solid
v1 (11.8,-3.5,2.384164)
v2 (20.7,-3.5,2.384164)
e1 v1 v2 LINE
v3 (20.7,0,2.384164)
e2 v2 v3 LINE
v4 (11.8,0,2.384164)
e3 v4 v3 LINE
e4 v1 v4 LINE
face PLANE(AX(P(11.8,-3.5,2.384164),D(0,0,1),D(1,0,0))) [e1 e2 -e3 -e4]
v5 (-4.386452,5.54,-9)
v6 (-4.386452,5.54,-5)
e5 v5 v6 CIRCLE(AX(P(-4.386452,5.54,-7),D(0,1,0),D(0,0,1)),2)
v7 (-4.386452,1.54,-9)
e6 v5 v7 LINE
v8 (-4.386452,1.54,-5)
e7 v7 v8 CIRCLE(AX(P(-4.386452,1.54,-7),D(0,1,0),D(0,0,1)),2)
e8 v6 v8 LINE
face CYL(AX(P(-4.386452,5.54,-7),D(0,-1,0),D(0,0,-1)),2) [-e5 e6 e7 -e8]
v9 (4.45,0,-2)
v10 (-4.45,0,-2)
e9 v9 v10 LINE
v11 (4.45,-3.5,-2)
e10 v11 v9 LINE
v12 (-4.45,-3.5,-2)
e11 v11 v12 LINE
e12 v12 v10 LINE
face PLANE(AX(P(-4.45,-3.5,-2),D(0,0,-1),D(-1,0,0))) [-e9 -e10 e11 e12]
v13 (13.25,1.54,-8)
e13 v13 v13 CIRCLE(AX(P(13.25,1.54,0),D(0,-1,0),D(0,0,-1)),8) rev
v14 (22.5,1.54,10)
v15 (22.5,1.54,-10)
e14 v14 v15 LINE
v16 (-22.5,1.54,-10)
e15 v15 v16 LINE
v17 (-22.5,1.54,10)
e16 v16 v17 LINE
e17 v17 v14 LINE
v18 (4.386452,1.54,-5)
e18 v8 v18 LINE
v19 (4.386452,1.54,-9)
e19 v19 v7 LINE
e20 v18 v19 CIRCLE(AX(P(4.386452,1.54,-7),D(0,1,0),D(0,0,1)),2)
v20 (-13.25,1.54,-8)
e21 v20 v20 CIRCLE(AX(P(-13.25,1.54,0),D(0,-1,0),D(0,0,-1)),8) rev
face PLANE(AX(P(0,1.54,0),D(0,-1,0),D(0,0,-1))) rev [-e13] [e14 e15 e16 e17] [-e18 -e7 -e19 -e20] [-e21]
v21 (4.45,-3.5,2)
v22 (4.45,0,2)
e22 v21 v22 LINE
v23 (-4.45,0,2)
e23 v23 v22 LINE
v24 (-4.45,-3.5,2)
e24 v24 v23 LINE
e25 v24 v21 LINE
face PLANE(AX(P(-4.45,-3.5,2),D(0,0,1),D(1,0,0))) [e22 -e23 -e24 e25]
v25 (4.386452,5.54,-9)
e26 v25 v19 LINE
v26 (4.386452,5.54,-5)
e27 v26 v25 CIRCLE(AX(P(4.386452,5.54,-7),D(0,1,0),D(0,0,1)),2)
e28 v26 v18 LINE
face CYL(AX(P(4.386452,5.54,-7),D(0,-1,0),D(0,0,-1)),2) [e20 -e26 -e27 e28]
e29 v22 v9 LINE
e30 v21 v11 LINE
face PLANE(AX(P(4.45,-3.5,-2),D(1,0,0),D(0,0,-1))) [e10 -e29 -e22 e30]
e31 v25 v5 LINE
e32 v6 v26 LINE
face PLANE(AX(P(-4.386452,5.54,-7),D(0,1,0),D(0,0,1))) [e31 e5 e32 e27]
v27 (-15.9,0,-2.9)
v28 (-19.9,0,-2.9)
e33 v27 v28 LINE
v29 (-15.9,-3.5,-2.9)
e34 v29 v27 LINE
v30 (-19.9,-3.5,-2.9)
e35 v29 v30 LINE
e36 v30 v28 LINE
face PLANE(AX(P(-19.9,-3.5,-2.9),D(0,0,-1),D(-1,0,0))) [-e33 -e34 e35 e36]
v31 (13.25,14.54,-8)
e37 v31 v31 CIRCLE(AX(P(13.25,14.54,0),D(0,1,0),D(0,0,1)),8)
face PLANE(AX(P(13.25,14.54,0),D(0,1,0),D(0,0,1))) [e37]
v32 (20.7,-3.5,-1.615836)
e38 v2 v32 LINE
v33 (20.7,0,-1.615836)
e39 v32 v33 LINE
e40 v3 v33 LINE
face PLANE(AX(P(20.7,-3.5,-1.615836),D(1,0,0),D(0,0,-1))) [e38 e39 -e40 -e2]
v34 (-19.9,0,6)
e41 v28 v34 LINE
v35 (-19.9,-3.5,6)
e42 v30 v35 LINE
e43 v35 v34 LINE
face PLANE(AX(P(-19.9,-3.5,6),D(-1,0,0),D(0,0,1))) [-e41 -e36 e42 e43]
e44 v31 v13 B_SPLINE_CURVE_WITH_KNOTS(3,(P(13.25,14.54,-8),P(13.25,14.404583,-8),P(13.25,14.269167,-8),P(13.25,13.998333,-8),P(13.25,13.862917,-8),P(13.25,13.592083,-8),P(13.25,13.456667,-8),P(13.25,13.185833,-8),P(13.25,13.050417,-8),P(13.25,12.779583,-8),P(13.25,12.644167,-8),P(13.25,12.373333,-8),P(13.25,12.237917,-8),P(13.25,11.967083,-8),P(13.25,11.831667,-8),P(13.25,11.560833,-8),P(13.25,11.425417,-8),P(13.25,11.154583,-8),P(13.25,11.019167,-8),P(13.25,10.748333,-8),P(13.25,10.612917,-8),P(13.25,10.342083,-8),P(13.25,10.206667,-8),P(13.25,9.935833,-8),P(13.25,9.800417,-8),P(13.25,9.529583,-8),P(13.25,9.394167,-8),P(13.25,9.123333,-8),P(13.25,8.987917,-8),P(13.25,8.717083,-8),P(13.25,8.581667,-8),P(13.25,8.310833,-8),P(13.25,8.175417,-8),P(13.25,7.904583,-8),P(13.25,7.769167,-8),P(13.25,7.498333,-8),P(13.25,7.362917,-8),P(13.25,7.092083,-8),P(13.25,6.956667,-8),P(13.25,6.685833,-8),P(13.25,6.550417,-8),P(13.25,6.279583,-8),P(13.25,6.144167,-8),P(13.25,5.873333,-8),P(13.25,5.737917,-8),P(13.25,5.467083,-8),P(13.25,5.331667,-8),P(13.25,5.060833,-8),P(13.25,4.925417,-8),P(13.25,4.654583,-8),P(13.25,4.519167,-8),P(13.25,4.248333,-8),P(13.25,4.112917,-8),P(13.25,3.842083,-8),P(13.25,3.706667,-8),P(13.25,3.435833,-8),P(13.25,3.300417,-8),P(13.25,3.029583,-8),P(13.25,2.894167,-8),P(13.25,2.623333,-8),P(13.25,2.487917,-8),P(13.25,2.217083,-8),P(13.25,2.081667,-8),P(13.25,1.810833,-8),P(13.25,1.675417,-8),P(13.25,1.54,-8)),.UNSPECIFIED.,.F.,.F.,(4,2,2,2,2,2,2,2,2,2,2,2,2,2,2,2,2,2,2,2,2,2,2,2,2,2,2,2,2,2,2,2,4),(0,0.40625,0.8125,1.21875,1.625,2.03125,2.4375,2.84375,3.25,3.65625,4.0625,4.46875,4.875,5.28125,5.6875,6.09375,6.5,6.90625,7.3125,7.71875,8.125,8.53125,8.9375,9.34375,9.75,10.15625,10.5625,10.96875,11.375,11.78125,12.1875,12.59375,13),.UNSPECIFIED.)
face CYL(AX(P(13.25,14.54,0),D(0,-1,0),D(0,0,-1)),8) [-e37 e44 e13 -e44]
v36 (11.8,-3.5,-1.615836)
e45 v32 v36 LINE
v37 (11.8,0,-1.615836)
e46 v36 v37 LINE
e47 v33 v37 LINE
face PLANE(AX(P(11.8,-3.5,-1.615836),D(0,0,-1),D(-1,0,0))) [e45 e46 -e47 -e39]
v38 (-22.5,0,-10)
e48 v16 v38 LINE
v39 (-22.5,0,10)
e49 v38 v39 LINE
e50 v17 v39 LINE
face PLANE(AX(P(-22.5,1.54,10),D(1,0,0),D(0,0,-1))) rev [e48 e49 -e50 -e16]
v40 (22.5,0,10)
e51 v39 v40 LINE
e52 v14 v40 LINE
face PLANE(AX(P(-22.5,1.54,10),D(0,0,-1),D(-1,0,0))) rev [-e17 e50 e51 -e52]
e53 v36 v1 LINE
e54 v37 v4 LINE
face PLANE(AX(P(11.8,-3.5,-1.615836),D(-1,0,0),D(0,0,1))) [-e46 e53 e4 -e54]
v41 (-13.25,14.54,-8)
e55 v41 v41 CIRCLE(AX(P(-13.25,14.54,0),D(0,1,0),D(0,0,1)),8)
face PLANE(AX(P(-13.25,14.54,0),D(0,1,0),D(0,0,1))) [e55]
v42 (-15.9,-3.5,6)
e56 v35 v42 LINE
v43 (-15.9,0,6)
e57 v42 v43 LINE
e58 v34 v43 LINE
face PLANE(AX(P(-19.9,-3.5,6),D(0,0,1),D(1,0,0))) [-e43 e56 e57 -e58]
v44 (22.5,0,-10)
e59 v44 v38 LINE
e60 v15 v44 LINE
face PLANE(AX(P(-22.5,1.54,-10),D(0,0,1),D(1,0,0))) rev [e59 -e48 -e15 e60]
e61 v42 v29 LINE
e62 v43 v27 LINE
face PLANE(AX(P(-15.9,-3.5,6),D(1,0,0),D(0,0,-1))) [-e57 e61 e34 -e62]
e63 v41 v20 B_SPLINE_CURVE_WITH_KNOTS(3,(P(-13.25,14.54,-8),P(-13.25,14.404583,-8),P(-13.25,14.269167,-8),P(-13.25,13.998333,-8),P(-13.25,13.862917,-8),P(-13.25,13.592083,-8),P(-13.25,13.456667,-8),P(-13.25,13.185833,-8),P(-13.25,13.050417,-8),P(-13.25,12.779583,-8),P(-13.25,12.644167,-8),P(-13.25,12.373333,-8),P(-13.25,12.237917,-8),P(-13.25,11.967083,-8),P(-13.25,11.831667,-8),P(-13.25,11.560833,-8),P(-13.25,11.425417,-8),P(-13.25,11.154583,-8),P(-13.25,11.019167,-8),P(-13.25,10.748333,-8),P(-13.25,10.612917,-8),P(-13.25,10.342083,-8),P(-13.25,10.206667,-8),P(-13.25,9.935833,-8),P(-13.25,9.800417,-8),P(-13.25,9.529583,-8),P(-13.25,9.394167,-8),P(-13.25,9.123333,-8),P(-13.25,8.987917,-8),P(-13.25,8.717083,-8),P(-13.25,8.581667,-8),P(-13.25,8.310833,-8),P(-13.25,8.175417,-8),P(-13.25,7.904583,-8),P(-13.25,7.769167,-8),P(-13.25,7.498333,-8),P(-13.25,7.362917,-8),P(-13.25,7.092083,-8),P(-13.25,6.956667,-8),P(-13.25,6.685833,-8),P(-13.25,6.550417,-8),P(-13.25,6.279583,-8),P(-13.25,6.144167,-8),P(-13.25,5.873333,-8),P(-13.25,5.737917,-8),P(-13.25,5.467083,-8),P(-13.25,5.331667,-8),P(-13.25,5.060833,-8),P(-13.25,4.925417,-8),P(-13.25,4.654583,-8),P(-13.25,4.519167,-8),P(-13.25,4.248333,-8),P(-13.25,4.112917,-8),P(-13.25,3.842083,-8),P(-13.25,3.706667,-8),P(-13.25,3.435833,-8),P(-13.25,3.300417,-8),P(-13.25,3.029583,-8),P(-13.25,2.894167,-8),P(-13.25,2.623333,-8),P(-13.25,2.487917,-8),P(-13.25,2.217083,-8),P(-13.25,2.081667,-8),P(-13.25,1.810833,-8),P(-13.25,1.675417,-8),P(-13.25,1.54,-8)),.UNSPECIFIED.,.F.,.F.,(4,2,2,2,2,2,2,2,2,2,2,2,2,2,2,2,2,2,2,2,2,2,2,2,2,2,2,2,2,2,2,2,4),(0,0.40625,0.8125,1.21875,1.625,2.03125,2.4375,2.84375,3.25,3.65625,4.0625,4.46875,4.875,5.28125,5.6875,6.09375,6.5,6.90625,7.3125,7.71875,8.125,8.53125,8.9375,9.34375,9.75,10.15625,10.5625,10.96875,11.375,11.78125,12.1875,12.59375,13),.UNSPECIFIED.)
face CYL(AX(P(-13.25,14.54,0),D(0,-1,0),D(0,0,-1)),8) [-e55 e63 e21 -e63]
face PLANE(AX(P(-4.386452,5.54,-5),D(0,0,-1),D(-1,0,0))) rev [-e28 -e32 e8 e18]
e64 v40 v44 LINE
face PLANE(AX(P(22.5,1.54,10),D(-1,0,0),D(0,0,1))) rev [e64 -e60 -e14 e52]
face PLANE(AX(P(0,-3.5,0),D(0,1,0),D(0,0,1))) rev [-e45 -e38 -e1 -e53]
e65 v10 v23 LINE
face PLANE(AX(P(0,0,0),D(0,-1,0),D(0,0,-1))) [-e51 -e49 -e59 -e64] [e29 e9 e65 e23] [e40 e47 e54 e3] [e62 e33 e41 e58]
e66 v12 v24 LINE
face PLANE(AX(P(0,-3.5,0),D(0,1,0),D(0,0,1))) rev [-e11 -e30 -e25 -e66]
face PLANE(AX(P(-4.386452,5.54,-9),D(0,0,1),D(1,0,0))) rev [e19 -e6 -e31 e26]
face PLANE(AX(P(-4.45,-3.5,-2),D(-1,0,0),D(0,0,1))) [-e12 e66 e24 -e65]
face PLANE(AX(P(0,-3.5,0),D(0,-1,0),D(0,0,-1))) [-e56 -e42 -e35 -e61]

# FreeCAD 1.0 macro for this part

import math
import FreeCAD as App
import Part
import Sketcher
from FreeCAD import Vector
Q = App.Units.Quantity


def add_polygon(sketch, points):
    """Adds a closed chain of lines whose ends are joined by coincident constraints."""
    first, n = sketch.GeometryCount, len(points)
    for a, b in zip(points, points[1:] + points[:1]):
        sketch.addGeometry(Part.LineSegment(App.Vector(*a, 0), App.Vector(*b, 0)), False)
    for i in range(n):
        sketch.addConstraint(Sketcher.Constraint("Coincident", first + i, 2, first + (i + 1) % n, 1))

doc = App.newDocument("Part")
params = doc.addObject("Spreadsheet::Sheet", "Params")
for row, (alias, value) in enumerate([
    ("sketch1_width", "45 mm"),
    ("sketch1_height", "20 mm"),
    ("pad1_length", "1.54 mm"),
    ("sketch2_diameter", "16 mm"),
    ("pad2_length", "13 mm"),
    ("sketch3_radius", "2 mm"),
    ("pad3_length", "4 mm"),
    ("sketch4_width", "4 mm"),
    ("sketch4_width2", "8.9 mm"),
    ("pad4_length", "3.5 mm"),
], start=1):
    params.set(f"A{row}", alias)
    params.set(f"B{row}", "=" + value)
    params.setAlias(f"B{row}", alias)

body = doc.addObject("PartDesign::Body", "Body")

# Sketch on XZ plane
sketch1 = body.newObject("Sketcher::SketchObject", "Sketch")
sketch1.AttachmentSupport = (doc.getObject("XZ_Plane"), [""])
sketch1.MapMode = "FlatFace"
add_polygon(sketch1, [(-22, -10), (-22, 10), (22, 10), (22, -10)])  # lines 0-3
sketch1.addConstraint(Sketcher.Constraint("Vertical", 0))
sketch1.addConstraint(Sketcher.Constraint("Horizontal", 1))
sketch1.addConstraint(Sketcher.Constraint("Vertical", 2))
sketch1.addConstraint(Sketcher.Constraint("Horizontal", 3))
sketch1.addConstraint(Sketcher.Constraint("Symmetric", 0, 2, 2, 2, -1, 1))
sketch1.addConstraint(Sketcher.Constraint("DistanceX", 1, 1, 1, 2, Q("45 mm")))
sketch1.addConstraint(Sketcher.Constraint("DistanceY", 0, 1, 0, 2, Q("20 mm")))
sketch1.setExpression("Constraints[9]", "Params.sketch1_width")
sketch1.setExpression("Constraints[10]", "Params.sketch1_height")
pad1 = body.newObject("PartDesign::Pad", "Pad")
pad1.Profile = sketch1
pad1.setExpression("Length", "Params.pad1_length")
pad1.Reversed = True

# Sketch on XZ plane
sketch2 = body.newObject("Sketcher::SketchObject", "Sketch001")
sketch2.AttachmentSupport = (doc.getObject("XZ_Plane"), [""])
sketch2.MapMode = "FlatFace"
sketch2.AttachmentOffset = App.Placement(Vector(0, 0, -1.54), App.Rotation())
sketch2.addGeometry(Part.Circle(Vector(-13, 0, 0), Vector(0, 0, 1), 8), False)
sketch2.addGeometry(Part.Circle(Vector(13, 0, 0), Vector(0, 0, 1), 8), False)
sketch2.addConstraint(Sketcher.Constraint("Equal", 0, 1))
sketch2.addConstraint(Sketcher.Constraint("Symmetric", 0, 3, 1, 3, -1, 1))
sketch2.addConstraint(Sketcher.Constraint("PointOnObject", 0, 3, -1))
sketch2.addConstraint(Sketcher.Constraint("Diameter", 0, Q("16 mm")))
sketch2.addConstraint(Sketcher.Constraint("DistanceX", 0, 3, 1, 3, Q("26.5 mm")))
sketch2.setExpression("Constraints[3]", "Params.sketch2_diameter")
pad2 = body.newObject("PartDesign::Pad", "Pad001")
pad2.Profile = sketch2
pad2.setExpression("Length", "Params.pad2_length")
pad2.Reversed = True

# Sketch on XZ plane
sketch3 = body.newObject("Sketcher::SketchObject", "Sketch002")
sketch3.AttachmentSupport = (doc.getObject("XZ_Plane"), [""])
sketch3.MapMode = "FlatFace"
sketch3.AttachmentOffset = App.Placement(Vector(0, 0, -1.54), App.Rotation())
sketch3.addGeometry(Part.LineSegment(Vector(4.4, -9, 0), Vector(-4.4, -9, 0)), False)
sketch3.addGeometry(Part.ArcOfCircle(Part.Circle(Vector(-4.4, -7, 0), Vector(0, 0, 1), 2), math.radians(90), math.radians(270)), False)
sketch3.addGeometry(Part.LineSegment(Vector(-4.4, -5, 0), Vector(4.4, -5, 0)), False)
sketch3.addGeometry(Part.ArcOfCircle(Part.Circle(Vector(4.4, -7, 0), Vector(0, 0, 1), 2), math.radians(-90), math.radians(90)), False)
sketch3.addConstraint(Sketcher.Constraint("Tangent", 0, 2, 1, 2))
sketch3.addConstraint(Sketcher.Constraint("Tangent", 1, 1, 2, 1))
sketch3.addConstraint(Sketcher.Constraint("Tangent", 2, 2, 3, 2))
sketch3.addConstraint(Sketcher.Constraint("Tangent", 3, 1, 0, 1))
sketch3.addConstraint(Sketcher.Constraint("Horizontal", 0))
sketch3.addConstraint(Sketcher.Constraint("Horizontal", 2))
sketch3.addConstraint(Sketcher.Constraint("Radius", 1, Q("2 mm")))
sketch3.addConstraint(Sketcher.Constraint("DistanceY", 1, 3, -1, 1, Q("7 mm")))
sketch3.addConstraint(Sketcher.Constraint("DistanceX", 0, 2, 0, 1, Q("8.772903 mm")))
sketch3.addConstraint(Sketcher.Constraint("DistanceX", 1, 3, -1, 1, Q("4.386452 mm")))
sketch3.setExpression("Constraints[6]", "Params.sketch3_radius")
pad3 = body.newObject("PartDesign::Pad", "Pad002")
pad3.Profile = sketch3
pad3.setExpression("Length", "Params.pad3_length")
pad3.Reversed = True

# Sketch on XZ plane
sketch4 = body.newObject("Sketcher::SketchObject", "Sketch003")
sketch4.AttachmentSupport = (doc.getObject("XZ_Plane"), [""])
sketch4.MapMode = "FlatFace"
add_polygon(sketch4, [(-4.5, -2), (-4.5, 2), (4.5, 2), (4.5, -2)])  # lines 0-3
add_polygon(sketch4, [(11.8, -1.6), (11.8, 2.4), (20.7, 2.4), (20.7, -1.6)])  # lines 4-7
add_polygon(sketch4, [(-19.9, -2.9), (-19.9, 6), (-15.9, 6), (-15.9, -2.9)])  # lines 8-11
sketch4.addConstraint(Sketcher.Constraint("Vertical", 0))
sketch4.addConstraint(Sketcher.Constraint("Horizontal", 1))
sketch4.addConstraint(Sketcher.Constraint("Vertical", 2))
sketch4.addConstraint(Sketcher.Constraint("Horizontal", 3))
sketch4.addConstraint(Sketcher.Constraint("Vertical", 4))
sketch4.addConstraint(Sketcher.Constraint("Horizontal", 5))
sketch4.addConstraint(Sketcher.Constraint("Vertical", 6))
sketch4.addConstraint(Sketcher.Constraint("Horizontal", 7))
sketch4.addConstraint(Sketcher.Constraint("Vertical", 8))
sketch4.addConstraint(Sketcher.Constraint("Horizontal", 9))
sketch4.addConstraint(Sketcher.Constraint("Vertical", 10))
sketch4.addConstraint(Sketcher.Constraint("Horizontal", 11))
sketch4.addConstraint(Sketcher.Constraint("Symmetric", 0, 2, 2, 2, -1, 1))
sketch4.addConstraint(Sketcher.Constraint("Equal", 3, 5))
sketch4.addConstraint(Sketcher.Constraint("Equal", 11, 0))
sketch4.addConstraint(Sketcher.Constraint("Equal", 2, 4))
sketch4.addConstraint(Sketcher.Constraint("Equal", 7, 8))
sketch4.addConstraint(Sketcher.Constraint("DistanceX", 9, 1, 9, 2, Q("4 mm")))
sketch4.addConstraint(Sketcher.Constraint("DistanceX", 1, 1, 1, 2, Q("8.9 mm")))
sketch4.addConstraint(Sketcher.Constraint("DistanceY", -1, 1, 8, 2, Q("6 mm")))
sketch4.addConstraint(Sketcher.Constraint("DistanceX", -1, 1, 4, 2, Q("11.8 mm")))
sketch4.addConstraint(Sketcher.Constraint("DistanceX", 8, 2, -1, 1, Q("19.9 mm")))
sketch4.addConstraint(Sketcher.Constraint("DistanceY", -1, 1, 4, 2, Q("2.384164 mm")))
sketch4.setExpression("Constraints[29]", "Params.sketch4_width")
sketch4.setExpression("Constraints[30]", "Params.sketch4_width2")
pad4 = body.newObject("PartDesign::Pad", "Pad003")
pad4.Profile = sketch4
pad4.setExpression("Length", "Params.pad4_length")

doc.recompute()
